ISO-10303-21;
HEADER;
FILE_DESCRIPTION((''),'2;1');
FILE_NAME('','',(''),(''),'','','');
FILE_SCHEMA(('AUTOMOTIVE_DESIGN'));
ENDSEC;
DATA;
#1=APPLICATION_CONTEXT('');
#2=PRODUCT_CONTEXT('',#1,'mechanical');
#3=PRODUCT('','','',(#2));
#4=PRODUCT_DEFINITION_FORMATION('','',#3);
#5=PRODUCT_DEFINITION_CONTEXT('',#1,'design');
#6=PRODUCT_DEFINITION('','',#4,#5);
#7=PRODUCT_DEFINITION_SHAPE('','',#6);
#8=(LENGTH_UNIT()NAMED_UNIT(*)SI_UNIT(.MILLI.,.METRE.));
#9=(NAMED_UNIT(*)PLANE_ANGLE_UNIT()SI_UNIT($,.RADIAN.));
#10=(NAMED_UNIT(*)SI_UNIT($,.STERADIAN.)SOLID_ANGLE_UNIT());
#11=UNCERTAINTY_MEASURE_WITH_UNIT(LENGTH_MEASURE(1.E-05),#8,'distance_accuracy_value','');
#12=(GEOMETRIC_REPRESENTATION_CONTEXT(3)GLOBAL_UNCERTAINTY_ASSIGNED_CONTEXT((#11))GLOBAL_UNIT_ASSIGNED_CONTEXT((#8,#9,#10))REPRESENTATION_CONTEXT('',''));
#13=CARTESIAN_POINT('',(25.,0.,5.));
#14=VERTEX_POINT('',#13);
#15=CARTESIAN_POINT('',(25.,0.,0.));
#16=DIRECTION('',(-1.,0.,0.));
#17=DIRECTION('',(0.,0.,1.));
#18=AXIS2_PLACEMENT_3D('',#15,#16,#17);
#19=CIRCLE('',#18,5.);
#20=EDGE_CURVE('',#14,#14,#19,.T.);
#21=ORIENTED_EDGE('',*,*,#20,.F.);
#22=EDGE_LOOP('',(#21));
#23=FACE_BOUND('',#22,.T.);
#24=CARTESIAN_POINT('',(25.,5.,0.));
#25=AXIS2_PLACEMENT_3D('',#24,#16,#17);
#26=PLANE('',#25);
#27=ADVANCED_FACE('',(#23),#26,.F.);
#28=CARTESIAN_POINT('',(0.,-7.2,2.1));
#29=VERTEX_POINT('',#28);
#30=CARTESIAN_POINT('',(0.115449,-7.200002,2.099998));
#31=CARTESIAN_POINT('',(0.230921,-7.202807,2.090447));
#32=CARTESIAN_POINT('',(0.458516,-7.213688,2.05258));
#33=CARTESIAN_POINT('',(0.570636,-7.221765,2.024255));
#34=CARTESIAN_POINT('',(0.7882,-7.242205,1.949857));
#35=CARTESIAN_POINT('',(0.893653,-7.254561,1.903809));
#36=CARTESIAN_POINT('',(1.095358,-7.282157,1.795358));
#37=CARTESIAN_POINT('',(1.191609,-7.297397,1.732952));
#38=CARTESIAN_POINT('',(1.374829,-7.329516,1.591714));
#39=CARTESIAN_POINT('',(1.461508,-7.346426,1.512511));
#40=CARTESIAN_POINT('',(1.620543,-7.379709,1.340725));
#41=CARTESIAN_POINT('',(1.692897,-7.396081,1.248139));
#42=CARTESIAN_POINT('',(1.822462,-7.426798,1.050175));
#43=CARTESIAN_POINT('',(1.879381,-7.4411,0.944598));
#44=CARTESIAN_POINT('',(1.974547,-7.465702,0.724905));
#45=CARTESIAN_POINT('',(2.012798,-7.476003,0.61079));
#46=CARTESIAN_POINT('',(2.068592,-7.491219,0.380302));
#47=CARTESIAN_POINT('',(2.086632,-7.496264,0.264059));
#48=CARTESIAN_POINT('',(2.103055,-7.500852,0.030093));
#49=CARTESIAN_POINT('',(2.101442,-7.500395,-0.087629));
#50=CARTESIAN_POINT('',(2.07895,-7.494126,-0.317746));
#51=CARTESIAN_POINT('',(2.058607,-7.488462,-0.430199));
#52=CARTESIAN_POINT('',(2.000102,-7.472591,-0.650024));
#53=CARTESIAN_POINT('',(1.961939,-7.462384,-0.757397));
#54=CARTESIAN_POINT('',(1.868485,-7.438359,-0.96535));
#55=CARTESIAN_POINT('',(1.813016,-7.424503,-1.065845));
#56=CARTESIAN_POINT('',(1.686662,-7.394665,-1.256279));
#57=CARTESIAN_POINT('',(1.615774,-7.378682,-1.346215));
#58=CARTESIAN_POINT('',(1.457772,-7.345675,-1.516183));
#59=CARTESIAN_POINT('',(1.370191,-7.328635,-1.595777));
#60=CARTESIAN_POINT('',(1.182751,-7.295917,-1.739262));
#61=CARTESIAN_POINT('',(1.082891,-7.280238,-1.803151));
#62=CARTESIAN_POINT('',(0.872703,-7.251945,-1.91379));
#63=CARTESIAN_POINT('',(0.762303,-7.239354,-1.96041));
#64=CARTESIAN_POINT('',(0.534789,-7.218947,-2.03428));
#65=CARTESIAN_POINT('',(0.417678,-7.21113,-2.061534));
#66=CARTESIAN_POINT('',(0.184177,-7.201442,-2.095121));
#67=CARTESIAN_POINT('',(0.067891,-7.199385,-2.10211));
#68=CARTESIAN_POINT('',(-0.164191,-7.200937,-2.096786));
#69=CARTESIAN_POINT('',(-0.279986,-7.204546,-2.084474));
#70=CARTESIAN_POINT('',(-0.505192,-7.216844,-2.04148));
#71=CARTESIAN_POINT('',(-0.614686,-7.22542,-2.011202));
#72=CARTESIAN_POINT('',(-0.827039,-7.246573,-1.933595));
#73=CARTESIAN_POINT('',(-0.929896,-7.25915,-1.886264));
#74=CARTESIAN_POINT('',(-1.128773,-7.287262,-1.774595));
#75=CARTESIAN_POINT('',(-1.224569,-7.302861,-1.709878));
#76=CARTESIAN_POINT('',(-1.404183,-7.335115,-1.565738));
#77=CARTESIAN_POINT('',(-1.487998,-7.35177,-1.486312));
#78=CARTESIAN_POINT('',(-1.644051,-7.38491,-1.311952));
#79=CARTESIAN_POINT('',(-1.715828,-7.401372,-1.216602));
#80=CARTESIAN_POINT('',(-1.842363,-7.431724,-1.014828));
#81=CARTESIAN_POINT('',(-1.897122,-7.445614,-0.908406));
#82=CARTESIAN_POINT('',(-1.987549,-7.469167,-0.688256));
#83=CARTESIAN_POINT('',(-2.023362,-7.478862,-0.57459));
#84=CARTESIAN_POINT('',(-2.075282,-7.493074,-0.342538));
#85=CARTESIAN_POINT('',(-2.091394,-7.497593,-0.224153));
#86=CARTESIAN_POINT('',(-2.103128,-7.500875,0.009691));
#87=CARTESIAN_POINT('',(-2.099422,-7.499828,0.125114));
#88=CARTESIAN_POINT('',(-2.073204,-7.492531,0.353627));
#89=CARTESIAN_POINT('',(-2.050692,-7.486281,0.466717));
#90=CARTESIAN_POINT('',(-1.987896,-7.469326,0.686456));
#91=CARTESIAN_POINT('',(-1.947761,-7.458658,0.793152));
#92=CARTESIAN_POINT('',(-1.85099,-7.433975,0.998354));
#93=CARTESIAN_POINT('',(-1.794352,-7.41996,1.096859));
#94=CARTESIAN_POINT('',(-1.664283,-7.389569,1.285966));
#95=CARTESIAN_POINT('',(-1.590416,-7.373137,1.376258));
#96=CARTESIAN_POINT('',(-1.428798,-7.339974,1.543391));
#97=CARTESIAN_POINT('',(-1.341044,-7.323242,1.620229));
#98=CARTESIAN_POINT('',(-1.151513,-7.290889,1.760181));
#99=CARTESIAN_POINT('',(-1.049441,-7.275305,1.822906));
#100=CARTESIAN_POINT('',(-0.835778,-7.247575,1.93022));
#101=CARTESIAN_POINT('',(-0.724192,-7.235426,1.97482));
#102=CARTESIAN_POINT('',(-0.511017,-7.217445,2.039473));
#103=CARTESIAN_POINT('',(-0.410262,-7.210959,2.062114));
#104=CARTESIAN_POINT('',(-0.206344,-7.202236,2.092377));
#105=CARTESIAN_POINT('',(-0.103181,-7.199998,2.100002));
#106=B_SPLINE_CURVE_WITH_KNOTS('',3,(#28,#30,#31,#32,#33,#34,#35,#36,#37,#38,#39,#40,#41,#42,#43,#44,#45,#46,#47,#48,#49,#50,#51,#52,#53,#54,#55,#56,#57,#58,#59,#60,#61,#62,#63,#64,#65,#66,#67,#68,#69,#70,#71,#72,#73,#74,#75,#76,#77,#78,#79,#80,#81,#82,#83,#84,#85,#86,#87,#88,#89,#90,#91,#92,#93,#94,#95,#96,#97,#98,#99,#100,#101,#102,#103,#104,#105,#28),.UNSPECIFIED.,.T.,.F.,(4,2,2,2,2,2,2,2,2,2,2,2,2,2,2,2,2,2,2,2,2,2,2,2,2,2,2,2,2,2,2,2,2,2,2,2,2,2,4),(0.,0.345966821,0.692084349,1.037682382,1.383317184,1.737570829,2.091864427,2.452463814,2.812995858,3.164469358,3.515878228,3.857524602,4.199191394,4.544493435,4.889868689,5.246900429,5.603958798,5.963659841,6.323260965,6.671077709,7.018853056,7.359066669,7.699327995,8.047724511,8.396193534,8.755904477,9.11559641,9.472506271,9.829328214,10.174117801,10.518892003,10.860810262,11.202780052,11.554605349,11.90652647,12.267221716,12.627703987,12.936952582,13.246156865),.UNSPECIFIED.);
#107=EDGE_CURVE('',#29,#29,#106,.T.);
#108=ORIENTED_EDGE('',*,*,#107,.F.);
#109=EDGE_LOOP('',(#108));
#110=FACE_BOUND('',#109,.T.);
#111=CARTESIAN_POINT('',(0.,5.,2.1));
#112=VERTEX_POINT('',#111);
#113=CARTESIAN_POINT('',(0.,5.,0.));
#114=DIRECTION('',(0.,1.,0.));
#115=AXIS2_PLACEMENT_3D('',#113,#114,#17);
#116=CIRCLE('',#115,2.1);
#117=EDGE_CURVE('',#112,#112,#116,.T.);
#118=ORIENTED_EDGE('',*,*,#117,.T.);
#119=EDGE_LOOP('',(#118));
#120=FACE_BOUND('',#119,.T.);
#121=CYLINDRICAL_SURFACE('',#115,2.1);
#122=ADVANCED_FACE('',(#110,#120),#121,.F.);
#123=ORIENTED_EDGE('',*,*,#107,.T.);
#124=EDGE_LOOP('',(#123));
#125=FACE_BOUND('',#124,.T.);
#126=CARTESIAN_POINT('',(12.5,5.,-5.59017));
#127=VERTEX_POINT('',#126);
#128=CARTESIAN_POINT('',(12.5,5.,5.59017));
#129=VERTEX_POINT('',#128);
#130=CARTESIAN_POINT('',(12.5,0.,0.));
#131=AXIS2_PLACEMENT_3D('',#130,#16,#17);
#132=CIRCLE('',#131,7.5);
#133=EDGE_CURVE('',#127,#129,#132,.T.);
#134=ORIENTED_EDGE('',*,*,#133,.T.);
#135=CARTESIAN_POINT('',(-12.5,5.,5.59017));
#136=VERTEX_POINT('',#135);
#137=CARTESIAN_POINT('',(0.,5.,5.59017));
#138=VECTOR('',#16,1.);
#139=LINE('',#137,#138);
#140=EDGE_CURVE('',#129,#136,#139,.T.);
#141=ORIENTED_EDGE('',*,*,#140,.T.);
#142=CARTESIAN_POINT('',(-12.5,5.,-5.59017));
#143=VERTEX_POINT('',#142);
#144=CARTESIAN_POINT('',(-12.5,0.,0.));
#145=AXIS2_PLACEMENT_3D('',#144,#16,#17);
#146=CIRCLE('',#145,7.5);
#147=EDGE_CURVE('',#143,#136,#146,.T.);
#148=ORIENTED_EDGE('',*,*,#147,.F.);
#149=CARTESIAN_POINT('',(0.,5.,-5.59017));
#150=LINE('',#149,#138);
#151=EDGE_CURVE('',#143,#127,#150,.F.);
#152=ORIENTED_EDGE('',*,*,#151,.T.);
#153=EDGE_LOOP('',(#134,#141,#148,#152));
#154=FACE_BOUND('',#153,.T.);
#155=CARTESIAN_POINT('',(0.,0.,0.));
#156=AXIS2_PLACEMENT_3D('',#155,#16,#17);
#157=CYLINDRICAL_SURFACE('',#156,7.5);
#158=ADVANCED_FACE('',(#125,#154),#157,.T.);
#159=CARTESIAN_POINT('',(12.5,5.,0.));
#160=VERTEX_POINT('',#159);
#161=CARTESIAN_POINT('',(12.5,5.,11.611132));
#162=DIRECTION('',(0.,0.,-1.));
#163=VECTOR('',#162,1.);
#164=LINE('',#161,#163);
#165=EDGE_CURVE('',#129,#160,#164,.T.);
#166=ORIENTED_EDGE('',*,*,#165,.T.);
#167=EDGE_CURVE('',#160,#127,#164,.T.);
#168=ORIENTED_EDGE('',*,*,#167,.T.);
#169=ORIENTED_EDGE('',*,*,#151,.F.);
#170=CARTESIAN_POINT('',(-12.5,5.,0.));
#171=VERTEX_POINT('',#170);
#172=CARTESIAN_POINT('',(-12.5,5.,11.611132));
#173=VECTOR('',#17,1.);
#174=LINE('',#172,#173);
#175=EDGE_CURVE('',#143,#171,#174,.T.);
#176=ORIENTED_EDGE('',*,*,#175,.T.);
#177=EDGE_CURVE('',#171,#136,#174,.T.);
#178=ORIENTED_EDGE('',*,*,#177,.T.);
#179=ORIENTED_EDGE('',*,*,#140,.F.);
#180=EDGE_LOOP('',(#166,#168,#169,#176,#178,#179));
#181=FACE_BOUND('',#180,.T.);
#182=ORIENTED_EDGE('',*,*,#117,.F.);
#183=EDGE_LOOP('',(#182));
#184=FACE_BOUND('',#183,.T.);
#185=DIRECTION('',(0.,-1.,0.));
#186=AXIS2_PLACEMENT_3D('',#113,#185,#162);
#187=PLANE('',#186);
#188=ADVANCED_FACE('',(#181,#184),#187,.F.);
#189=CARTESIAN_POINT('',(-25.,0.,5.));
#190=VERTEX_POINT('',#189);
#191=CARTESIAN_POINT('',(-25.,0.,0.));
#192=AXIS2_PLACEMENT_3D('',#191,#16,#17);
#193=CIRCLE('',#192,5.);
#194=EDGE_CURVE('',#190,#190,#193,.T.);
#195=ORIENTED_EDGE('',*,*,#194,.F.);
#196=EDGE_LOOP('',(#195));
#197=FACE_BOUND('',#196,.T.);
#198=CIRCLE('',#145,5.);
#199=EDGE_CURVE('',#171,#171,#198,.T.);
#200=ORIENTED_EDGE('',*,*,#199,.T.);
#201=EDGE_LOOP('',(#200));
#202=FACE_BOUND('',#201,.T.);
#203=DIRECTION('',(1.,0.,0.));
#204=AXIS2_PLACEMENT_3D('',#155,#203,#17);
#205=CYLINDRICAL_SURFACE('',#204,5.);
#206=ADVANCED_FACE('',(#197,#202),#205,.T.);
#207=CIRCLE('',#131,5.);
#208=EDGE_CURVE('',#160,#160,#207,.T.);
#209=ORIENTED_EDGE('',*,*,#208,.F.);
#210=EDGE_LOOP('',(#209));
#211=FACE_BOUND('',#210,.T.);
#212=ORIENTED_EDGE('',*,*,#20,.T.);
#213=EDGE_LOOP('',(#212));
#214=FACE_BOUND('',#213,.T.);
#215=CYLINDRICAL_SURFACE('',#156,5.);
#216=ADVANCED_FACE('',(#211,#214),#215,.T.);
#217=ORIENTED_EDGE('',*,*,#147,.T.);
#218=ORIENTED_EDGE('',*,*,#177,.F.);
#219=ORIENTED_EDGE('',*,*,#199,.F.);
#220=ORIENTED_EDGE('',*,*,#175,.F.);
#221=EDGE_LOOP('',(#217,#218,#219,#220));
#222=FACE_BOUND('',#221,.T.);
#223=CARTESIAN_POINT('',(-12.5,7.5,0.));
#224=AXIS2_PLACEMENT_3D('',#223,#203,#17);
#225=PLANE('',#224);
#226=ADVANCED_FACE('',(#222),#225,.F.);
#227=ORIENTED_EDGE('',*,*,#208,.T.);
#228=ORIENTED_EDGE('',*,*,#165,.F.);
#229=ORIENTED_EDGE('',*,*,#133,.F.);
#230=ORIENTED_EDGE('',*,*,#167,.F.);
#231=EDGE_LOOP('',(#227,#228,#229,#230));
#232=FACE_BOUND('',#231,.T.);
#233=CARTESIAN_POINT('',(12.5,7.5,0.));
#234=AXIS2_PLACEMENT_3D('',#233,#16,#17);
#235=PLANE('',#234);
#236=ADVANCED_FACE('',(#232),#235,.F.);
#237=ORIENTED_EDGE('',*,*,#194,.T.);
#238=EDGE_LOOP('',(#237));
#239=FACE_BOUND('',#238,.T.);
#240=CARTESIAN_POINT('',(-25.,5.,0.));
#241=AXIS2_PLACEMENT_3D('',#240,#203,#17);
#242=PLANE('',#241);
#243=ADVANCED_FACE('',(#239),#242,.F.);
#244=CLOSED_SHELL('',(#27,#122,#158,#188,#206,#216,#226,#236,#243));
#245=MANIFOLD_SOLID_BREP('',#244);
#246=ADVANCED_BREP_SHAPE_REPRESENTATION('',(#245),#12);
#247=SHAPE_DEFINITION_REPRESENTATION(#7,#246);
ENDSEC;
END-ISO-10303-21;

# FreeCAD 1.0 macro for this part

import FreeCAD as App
import Part
import Sketcher
Q = App.Units.Quantity

doc = App.newDocument("Part")
body = doc.addObject("PartDesign::Body", "Body")

sketch1 = doc.addObject("Sketcher::SketchObject", "Sketch")
body.addObject(sketch1)
sketch1.AttachmentSupport = (doc.XY_Plane, [""])
sketch1.MapMode = "FlatFace"
sketch1.addGeometry([
    Part.LineSegment(App.Vector(12.5, 7.5, 0), App.Vector(0, 7.5, 0)),
    Part.LineSegment(App.Vector(0, 7.5, 0), App.Vector(0, 0, 0)),
    Part.LineSegment(App.Vector(0, 0, 0), App.Vector(25, 0, 0)),
    Part.LineSegment(App.Vector(25, 0, 0), App.Vector(25, 5, 0)),
    Part.LineSegment(App.Vector(25, 5, 0), App.Vector(12.5, 5, 0)),
    Part.LineSegment(App.Vector(12.5, 5, 0), App.Vector(12.5, 7.5, 0)),
], False)
sketch1.addConstraint([
    Sketcher.Constraint("Coincident", 0, 2, 1, 1),
    Sketcher.Constraint("Coincident", 1, 2, 2, 1),
    Sketcher.Constraint("Coincident", 2, 2, 3, 1),
    Sketcher.Constraint("Coincident", 3, 2, 4, 1),
    Sketcher.Constraint("Coincident", 4, 2, 5, 1),
    Sketcher.Constraint("Coincident", 5, 2, 0, 1),
    Sketcher.Constraint("Horizontal", 0),
    Sketcher.Constraint("Vertical", 1),
    Sketcher.Constraint("Horizontal", 2),
    Sketcher.Constraint("Vertical", 3),
    Sketcher.Constraint("Horizontal", 4),
    Sketcher.Constraint("Vertical", 5),
    Sketcher.Constraint("Coincident", 1, 2, -1, 1),
    Sketcher.Constraint("Equal", 0, 4),
    Sketcher.Constraint("DistanceX", 2, 1, 2, 2, Q("25 mm")),
    Sketcher.Constraint("DistanceY", 3, 1, 3, 2, Q("5 mm")),
    Sketcher.Constraint("DistanceY", 1, 2, 1, 1, Q("7.5 mm")),
])
revolution = doc.addObject("PartDesign::Revolution", "Revolution")
body.addObject(revolution)
revolution.Profile = sketch1
revolution.ReferenceAxis = (sketch1, ["H_Axis"])
revolution.Angle = 360
doc.recompute()

mirrored = doc.addObject("PartDesign::Mirrored", "Mirrored")
body.addObject(mirrored)
mirrored.Originals = [revolution]
mirrored.MirrorPlane = (doc.YZ_Plane, [""])
body.Tip = mirrored

sketch2 = doc.addObject("Sketcher::SketchObject", "Sketch001")
body.addObject(sketch2)
sketch2.AttachmentSupport = (doc.XZ_Plane, [""])
sketch2.MapMode = "FlatFace"
sketch2.AttachmentOffset = App.Placement(App.Vector(0, 0, -5), App.Rotation())
sketch2.addGeometry([
    Part.LineSegment(App.Vector(-12.5, -11.611132, 0), App.Vector(-12.5, 11.611132, 0)),
    Part.LineSegment(App.Vector(-12.5, 11.611132, 0), App.Vector(12.5, 11.611132, 0)),
    Part.LineSegment(App.Vector(12.5, 11.611132, 0), App.Vector(12.5, -11.611132, 0)),
    Part.LineSegment(App.Vector(12.5, -11.611132, 0), App.Vector(-12.5, -11.611132, 0)),
], False)
sketch2.addConstraint([
    Sketcher.Constraint("Coincident", 0, 2, 1, 1),
    Sketcher.Constraint("Coincident", 1, 2, 2, 1),
    Sketcher.Constraint("Coincident", 2, 2, 3, 1),
    Sketcher.Constraint("Coincident", 3, 2, 0, 1),
    Sketcher.Constraint("Vertical", 0),
    Sketcher.Constraint("Horizontal", 1),
    Sketcher.Constraint("Vertical", 2),
    Sketcher.Constraint("Horizontal", 3),
    Sketcher.Constraint("Symmetric", 0, 2, 2, 2, -1, 1),
    Sketcher.Constraint("DistanceX", 1, 1, 1, 2, Q("25 mm")),
    Sketcher.Constraint("DistanceY", 0, 1, 0, 2, Q("23.222264 mm")),
])
pocket1 = doc.addObject("PartDesign::Pocket", "Pocket")
body.addObject(pocket1)
pocket1.Profile = sketch2
pocket1.Type = "ThroughAll"

sketch3 = doc.addObject("Sketcher::SketchObject", "Sketch002")
body.addObject(sketch3)
sketch3.AttachmentSupport = (doc.XZ_Plane, [""])
sketch3.MapMode = "FlatFace"
sketch3.AttachmentOffset = App.Placement(App.Vector(0, 0, -5), App.Rotation())
sketch3.addGeometry(Part.Circle(App.Vector(0, 0, 0), App.Vector(0, 0, 1), 2.1), False)
sketch3.addConstraint([
    Sketcher.Constraint("Coincident", 0, 3, -1, 1),
    Sketcher.Constraint("Diameter", 0, Q("4.2 mm")),
])
doc.recompute()
hole = doc.addObject("PartDesign::Hole", "Hole")
body.addObject(hole)
hole.Profile = sketch3
hole.ThreadType = "None"
hole.Diameter = 4.2
hole.DepthType = "ThroughAll"
hole.Reversed = True

doc.recompute()
